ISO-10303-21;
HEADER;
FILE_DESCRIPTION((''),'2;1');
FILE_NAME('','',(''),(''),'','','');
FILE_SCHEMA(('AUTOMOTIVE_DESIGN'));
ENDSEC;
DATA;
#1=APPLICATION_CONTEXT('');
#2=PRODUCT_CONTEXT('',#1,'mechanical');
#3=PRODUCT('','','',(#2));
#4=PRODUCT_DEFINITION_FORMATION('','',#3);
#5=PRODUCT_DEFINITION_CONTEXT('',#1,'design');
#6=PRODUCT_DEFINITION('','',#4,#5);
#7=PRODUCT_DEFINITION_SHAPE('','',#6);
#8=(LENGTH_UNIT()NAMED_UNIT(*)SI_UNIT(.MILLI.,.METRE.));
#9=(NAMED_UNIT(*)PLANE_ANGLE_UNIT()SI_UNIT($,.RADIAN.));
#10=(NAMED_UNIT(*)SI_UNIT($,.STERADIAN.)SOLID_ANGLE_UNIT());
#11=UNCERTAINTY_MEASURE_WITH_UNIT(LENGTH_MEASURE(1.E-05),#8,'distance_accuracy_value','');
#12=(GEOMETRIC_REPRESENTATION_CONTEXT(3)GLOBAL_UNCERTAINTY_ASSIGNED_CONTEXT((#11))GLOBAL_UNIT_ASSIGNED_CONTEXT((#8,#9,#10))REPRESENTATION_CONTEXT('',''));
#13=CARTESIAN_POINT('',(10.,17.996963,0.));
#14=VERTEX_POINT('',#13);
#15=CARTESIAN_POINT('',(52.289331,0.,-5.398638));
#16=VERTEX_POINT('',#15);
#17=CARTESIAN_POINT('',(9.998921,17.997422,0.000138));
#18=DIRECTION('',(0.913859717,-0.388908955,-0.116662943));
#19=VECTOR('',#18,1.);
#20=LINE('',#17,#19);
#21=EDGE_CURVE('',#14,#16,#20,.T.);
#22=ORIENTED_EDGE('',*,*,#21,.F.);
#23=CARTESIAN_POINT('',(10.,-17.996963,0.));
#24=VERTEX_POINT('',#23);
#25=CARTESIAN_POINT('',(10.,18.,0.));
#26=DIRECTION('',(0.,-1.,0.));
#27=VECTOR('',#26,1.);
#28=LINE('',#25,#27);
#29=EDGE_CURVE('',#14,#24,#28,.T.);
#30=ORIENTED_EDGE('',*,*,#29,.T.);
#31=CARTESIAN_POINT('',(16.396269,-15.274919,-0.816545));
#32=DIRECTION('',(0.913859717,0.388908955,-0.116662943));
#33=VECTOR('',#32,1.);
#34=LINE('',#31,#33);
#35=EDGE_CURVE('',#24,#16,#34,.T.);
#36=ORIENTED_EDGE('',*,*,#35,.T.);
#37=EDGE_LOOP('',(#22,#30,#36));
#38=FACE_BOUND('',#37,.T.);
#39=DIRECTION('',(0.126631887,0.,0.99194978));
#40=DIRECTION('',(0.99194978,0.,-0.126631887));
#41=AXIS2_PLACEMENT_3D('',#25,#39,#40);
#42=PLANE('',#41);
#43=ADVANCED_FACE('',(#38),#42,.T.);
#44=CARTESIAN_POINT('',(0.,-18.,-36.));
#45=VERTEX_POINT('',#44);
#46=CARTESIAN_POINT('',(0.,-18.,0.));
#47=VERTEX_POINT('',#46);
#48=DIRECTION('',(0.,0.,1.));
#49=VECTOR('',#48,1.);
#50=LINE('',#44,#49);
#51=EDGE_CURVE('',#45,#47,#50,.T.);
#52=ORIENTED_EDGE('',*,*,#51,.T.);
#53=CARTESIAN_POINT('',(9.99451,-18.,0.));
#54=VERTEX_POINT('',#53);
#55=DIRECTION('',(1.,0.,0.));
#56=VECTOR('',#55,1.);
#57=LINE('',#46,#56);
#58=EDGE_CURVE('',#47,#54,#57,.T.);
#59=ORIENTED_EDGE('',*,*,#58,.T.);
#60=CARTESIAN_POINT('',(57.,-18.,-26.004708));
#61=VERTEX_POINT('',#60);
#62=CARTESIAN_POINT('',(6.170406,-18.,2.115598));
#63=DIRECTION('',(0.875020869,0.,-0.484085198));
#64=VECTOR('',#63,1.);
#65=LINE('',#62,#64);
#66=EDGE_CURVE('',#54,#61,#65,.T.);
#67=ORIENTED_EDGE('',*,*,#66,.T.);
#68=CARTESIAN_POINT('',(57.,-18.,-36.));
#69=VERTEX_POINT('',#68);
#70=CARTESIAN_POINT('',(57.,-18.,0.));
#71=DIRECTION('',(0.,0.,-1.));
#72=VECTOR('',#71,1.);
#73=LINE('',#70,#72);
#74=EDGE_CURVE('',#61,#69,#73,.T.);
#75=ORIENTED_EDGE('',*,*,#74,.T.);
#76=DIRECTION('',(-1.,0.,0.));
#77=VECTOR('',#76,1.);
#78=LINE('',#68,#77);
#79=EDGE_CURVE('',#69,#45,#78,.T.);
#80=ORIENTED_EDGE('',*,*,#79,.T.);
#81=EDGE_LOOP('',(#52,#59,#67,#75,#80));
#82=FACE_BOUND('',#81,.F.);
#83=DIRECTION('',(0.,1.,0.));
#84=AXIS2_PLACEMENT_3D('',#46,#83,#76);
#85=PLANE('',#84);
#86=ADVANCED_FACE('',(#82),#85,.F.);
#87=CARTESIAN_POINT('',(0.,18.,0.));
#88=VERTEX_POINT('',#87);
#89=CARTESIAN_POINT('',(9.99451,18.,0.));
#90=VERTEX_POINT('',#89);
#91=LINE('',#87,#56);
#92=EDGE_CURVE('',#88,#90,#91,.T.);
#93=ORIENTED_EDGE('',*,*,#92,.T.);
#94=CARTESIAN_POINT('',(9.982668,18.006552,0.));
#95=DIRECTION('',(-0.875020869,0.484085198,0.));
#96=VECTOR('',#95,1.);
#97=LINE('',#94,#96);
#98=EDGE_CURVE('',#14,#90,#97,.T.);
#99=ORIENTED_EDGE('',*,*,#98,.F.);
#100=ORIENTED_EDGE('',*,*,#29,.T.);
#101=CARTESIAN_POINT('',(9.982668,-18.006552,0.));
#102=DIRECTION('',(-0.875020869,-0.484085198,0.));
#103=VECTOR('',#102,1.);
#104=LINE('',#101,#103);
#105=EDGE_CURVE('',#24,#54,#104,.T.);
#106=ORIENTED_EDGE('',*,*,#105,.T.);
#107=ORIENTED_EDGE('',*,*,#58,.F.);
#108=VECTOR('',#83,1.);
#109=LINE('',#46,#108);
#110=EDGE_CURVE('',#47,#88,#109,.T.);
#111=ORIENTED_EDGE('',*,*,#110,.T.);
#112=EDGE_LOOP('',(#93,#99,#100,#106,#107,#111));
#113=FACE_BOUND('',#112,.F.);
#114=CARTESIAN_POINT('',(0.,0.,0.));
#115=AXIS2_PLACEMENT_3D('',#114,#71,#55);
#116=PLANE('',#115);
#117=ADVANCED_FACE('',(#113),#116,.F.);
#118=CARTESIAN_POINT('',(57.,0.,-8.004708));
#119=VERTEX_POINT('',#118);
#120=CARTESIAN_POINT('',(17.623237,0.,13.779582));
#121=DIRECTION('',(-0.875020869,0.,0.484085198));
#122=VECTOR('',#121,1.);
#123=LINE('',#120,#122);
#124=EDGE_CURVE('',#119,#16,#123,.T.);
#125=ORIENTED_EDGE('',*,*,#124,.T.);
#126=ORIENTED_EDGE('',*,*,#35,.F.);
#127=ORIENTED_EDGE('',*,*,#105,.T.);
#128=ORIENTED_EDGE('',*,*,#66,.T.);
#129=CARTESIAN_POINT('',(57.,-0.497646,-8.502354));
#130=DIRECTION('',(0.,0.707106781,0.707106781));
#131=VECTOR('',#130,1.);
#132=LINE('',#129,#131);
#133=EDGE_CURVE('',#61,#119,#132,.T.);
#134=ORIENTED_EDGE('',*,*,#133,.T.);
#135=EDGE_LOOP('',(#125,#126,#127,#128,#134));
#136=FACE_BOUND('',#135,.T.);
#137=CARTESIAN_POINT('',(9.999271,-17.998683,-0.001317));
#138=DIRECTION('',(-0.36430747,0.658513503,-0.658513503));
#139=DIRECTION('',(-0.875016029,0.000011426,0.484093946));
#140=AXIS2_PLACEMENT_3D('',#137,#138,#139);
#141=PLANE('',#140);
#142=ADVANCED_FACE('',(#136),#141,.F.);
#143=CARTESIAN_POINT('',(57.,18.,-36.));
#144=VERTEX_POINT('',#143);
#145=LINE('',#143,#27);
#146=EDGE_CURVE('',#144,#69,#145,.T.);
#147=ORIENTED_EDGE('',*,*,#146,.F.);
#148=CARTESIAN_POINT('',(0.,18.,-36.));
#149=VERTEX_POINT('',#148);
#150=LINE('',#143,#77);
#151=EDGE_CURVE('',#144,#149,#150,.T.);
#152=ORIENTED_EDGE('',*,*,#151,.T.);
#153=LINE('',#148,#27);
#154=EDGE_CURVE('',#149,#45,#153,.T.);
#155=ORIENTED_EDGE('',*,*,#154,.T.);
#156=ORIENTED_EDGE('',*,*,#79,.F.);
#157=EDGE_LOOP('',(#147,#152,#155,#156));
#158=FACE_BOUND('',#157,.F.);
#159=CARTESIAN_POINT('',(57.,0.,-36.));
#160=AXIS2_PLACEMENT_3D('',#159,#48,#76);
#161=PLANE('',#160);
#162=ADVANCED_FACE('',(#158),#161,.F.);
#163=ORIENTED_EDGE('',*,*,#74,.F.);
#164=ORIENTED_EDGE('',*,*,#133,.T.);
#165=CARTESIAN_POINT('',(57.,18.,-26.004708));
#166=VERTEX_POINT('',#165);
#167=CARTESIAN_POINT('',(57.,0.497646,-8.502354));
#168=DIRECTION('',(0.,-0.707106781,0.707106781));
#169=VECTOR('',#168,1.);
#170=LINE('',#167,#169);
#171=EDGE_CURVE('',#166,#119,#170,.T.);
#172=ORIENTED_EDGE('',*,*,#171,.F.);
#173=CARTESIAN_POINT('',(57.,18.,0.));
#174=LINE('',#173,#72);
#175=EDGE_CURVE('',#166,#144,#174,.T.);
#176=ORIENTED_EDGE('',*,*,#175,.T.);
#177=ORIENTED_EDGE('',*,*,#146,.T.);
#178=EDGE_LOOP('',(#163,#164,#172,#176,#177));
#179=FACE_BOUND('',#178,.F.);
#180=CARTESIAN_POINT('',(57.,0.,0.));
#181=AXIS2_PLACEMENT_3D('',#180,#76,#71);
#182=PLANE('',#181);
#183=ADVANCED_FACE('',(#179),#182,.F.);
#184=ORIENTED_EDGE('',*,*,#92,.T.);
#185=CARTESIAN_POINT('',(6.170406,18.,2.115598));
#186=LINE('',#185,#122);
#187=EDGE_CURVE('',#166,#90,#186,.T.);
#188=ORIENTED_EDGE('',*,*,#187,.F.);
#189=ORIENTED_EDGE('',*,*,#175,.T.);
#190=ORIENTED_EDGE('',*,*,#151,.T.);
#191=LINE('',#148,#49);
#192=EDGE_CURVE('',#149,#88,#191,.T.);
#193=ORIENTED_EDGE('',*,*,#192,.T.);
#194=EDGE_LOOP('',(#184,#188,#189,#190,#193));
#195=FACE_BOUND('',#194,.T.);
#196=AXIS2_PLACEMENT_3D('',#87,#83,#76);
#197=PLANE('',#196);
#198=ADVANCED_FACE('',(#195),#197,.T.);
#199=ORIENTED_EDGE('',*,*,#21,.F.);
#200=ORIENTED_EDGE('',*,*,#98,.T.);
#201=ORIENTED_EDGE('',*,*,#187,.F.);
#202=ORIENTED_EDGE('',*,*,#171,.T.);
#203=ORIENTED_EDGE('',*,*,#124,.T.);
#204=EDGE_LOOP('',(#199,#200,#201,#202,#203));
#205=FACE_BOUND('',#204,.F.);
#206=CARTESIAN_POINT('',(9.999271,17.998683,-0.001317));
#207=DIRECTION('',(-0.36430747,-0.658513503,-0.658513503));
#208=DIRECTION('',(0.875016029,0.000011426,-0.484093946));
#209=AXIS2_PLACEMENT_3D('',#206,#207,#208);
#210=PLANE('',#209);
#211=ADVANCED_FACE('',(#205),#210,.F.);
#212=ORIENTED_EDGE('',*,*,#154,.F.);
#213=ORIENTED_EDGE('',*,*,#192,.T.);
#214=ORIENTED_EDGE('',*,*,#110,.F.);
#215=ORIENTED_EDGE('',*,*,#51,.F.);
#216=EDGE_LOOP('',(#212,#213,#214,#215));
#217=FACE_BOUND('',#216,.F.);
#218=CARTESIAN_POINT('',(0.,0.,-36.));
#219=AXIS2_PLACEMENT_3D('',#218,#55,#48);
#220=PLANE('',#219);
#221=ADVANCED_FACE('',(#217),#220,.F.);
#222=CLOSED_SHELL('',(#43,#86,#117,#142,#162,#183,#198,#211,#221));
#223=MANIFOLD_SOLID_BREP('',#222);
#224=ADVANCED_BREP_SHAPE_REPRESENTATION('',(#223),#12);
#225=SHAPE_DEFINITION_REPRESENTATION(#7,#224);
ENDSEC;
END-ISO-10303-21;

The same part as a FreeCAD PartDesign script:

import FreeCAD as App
import Part
import Sketcher
from FreeCAD import Vector


def add_polygon(sketch, points):
    """Adds a closed chain of lines whose ends are joined by coincident constraints."""
    first, n = sketch.GeometryCount, len(points)
    for a, b in zip(points, points[1:] + points[:1]):
        sketch.addGeometry(Part.LineSegment(App.Vector(*a, 0), App.Vector(*b, 0)), False)
    for i in range(n):
        sketch.addConstraint(Sketcher.Constraint("Coincident", first + i, 2, first + (i + 1) % n, 1))

doc = App.newDocument("Part")
body = doc.addObject("PartDesign::Body", "Body")

# Sketch on XZ plane
sketch1 = doc.addObject("Sketcher::SketchObject", "Sketch")
body.addObject(sketch1)
sketch1.AttachmentSupport = (doc.XZ_Plane, [""])
sketch1.MapMode = "FlatFace"
add_polygon(sketch1, [(0, -36), (0, 0), (57, 0), (57, -36)])  # lines 0-3
sketch1.addConstraint([
    Sketcher.Constraint("Vertical", 0),
    Sketcher.Constraint("Horizontal", 1),
    Sketcher.Constraint("Vertical", 2),
    Sketcher.Constraint("Horizontal", 3),
    Sketcher.Constraint("Coincident", 0, 2, -1, 1),
    Sketcher.Constraint("DistanceX", 1, 1, 1, 2, 57.0),
    Sketcher.Constraint("DistanceY", 0, 1, 0, 2, 36.0),
])
pad1 = doc.addObject("PartDesign::Pad", "Pad")
body.addObject(pad1)
pad1.Profile = sketch1
pad1.Length = 36
pad1.Midplane = True

# Sketch on XZ plane
sketch2 = doc.addObject("Sketcher::SketchObject", "Sketch001")
body.addObject(sketch2)
sketch2.AttachmentSupport = (doc.XZ_Plane, [""])
sketch2.MapMode = "FlatFace"
sketch2.AttachmentOffset = App.Placement(Vector(0, 0, -18), App.Rotation())
add_polygon(sketch2, [(57, -6), (10, 0), (57, 0)])  # lines 0-2
sketch2.addConstraint([
    Sketcher.Constraint("Horizontal", 1),
    Sketcher.Constraint("Vertical", 2),
    Sketcher.Constraint("PointOnObject", 0, 2, -1),
    Sketcher.Constraint("DistanceX", -1, 1, 0, 2, 10.0),
    Sketcher.Constraint("DistanceX", 1, 1, 1, 2, 47.0),
    Sketcher.Constraint("DistanceY", 2, 2, 2, 1, 6.0),
])
pocket1 = doc.addObject("PartDesign::Pocket", "Pocket")
body.addObject(pocket1)
pocket1.Profile = sketch2
pocket1.Length = 40
pocket1.Reversed = True

# Sketch on an angled plane
sketch3 = doc.addObject("Sketcher::SketchObject", "Sketch002")
body.addObject(sketch3)
sketch3.Placement = App.Placement(Vector(10, 18, 0), App.Rotation(Vector(0.875016029, 0.000011426, -0.484093946), Vector(0.318789924, -0.752568911, 0.576205708), Vector(-0.36430747, -0.658513503, -0.658513503), "ZXY"))
add_polygon(sketch3, [(-15, 29), (-15, -12), (94, -12), (94, 29)])  # lines 0-3
sketch3.addConstraint([
    Sketcher.Constraint("Vertical", 0),
    Sketcher.Constraint("Horizontal", 1),
    Sketcher.Constraint("Vertical", 2),
    Sketcher.Constraint("Horizontal", 3),
    Sketcher.Constraint("DistanceX", 1, 1, 1, 2, 108.8713),
    Sketcher.Constraint("DistanceY", 0, 2, 0, 1, 41.1384),
    Sketcher.Constraint("DistanceX", -1, 1, 1, 2, 93.717),
    Sketcher.Constraint("DistanceY", 0, 2, -1, 1, 12.3218),
])
pocket2 = doc.addObject("PartDesign::Pocket", "Pocket001")
body.addObject(pocket2)
pocket2.Profile = sketch3
pocket2.Length = 40
doc.recompute()

mirrored = doc.addObject("PartDesign::Mirrored", "Mirrored")
body.addObject(mirrored)
mirrored.Originals = [pocket2]
mirrored.MirrorPlane = (doc.XZ_Plane, [""])
body.Tip = mirrored

doc.recompute()
